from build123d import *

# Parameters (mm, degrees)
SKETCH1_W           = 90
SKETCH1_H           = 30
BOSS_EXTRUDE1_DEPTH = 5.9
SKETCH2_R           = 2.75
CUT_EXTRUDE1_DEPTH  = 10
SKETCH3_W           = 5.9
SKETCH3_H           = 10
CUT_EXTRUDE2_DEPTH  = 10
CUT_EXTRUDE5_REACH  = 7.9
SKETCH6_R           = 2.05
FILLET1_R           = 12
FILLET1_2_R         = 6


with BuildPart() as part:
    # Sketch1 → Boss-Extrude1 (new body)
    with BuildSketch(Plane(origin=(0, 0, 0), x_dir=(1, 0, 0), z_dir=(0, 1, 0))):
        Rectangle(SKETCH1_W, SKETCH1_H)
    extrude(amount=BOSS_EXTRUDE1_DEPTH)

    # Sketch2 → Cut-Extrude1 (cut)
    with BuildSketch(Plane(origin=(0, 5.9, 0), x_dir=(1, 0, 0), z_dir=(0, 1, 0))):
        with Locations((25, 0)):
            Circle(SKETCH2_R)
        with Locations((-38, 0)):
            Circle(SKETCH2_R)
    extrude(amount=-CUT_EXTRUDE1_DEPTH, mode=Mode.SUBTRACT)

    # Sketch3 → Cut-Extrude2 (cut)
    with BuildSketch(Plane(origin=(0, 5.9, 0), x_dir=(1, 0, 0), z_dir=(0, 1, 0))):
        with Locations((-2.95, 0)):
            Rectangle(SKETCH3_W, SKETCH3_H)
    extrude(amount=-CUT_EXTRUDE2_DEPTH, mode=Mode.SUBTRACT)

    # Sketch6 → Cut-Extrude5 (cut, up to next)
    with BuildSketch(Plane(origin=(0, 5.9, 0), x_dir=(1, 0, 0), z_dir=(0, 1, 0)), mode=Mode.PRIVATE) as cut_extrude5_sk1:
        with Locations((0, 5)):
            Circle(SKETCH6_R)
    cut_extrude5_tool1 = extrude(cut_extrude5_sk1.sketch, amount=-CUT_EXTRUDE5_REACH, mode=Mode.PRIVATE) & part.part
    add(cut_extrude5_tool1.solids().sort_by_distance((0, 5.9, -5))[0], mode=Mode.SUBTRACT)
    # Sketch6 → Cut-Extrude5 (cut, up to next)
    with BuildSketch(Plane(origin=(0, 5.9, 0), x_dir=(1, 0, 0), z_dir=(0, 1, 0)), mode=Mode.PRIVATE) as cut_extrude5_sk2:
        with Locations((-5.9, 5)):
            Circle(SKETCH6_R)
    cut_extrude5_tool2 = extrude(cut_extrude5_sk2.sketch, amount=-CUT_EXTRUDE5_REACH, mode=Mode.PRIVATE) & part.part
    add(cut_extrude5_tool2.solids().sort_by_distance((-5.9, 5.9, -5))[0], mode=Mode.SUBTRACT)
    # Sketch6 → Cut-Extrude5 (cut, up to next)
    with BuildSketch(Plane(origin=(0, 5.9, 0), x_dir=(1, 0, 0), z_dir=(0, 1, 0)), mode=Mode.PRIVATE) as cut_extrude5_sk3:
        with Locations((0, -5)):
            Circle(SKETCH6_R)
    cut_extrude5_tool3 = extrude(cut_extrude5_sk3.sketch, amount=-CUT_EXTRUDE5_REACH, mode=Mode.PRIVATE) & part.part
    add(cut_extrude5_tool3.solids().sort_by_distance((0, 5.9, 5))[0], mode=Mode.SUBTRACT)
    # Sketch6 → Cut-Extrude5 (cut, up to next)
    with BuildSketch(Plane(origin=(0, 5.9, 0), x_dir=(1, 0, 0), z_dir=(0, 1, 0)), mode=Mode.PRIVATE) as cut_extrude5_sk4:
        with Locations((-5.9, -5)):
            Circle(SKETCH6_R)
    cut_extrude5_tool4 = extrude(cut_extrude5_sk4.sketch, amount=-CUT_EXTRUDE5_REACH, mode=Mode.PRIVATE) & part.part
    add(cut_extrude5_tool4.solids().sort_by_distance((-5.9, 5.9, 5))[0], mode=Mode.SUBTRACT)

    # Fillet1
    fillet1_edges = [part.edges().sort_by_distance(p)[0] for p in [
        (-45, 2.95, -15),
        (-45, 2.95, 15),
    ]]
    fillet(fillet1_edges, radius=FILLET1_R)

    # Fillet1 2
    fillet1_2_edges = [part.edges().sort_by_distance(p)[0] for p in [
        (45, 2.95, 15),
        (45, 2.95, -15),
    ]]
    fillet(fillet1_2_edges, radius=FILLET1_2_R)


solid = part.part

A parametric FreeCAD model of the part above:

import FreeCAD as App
import Part
import Sketcher
Q = App.Units.Quantity


def edges_at(feature, points):
    """Names of the edges that pass closest to the given points."""
    edges = feature.Shape.Edges
    near = lambda p: min(range(len(edges)), key=lambda i: edges[i].distToShape(Part.Vertex(*p))[0])
    return sorted({f"Edge{near(p) + 1}" for p in points})


def add_polygon(sketch, points):
    """Adds a closed chain of lines whose ends are joined by coincident constraints."""
    first, n = sketch.GeometryCount, len(points)
    for a, b in zip(points, points[1:] + points[:1]):
        sketch.addGeometry(Part.LineSegment(App.Vector(*a, 0), App.Vector(*b, 0)), False)
    for i in range(n):
        sketch.addConstraint(Sketcher.Constraint("Coincident", first + i, 2, first + (i + 1) % n, 1))

doc = App.newDocument("Part")
params = doc.addObject("Spreadsheet::Sheet", "Params")
for row, (alias, value) in enumerate([
    ("sketch1_width", "90 mm"),
    ("sketch1_height", "30 mm"),
    ("pad1_length", "5.9 mm"),
    ("sketch2_diameter", "5.5 mm"),
    ("pocket1_length", "10 mm"),
    ("sketch3_height", "10 mm"),
    ("sketch3_width", "5.9 mm"),
    ("pocket2_length", "10 mm"),
    ("sketch4_diameter", "4.1 mm"),
    ("sketch5_diameter", "4.1 mm"),
    ("sketch6_diameter", "4.1 mm"),
    ("sketch7_diameter", "4.1 mm"),
    ("fillet_radius", "12 mm"),
    ("fillet2_radius", "6 mm"),
], start=1):
    params.set(f"A{row}", alias)
    params.set(f"B{row}", "=" + value)
    params.setAlias(f"B{row}", alias)

body = doc.addObject("PartDesign::Body", "Body")

# Sketch on XZ plane
sketch1 = body.newObject("Sketcher::SketchObject", "Sketch")
sketch1.AttachmentSupport = (doc.getObject("XZ_Plane"), [""])
sketch1.MapMode = "FlatFace"
add_polygon(sketch1, [(-45, -15), (-45, 15), (45, 15), (45, -15)])  # lines 0-3
sketch1.addConstraint(Sketcher.Constraint("Vertical", 0))
sketch1.addConstraint(Sketcher.Constraint("Horizontal", 1))
sketch1.addConstraint(Sketcher.Constraint("Vertical", 2))
sketch1.addConstraint(Sketcher.Constraint("Horizontal", 3))
sketch1.addConstraint(Sketcher.Constraint("Symmetric", 0, 2, 2, 2, -1, 1))
sketch1.addConstraint(Sketcher.Constraint("DistanceX", 1, 1, 1, 2, Q("90 mm")))
sketch1.addConstraint(Sketcher.Constraint("DistanceY", 0, 1, 0, 2, Q("30 mm")))
sketch1.setExpression("Constraints[9]", "Params.sketch1_width")
sketch1.setExpression("Constraints[10]", "Params.sketch1_height")
pad1 = body.newObject("PartDesign::Pad", "Pad")
pad1.Profile = sketch1
pad1.setExpression("Length", "Params.pad1_length")
pad1.Reversed = True

# Sketch on XZ plane
sketch2 = body.newObject("Sketcher::SketchObject", "Sketch001")
sketch2.AttachmentSupport = (doc.getObject("XZ_Plane"), [""])
sketch2.MapMode = "FlatFace"
sketch2.AttachmentOffset = App.Placement(App.Vector(0, 0, -5.9), App.Rotation())
sketch2.addGeometry(Part.Circle(App.Vector(25, 0, 0), App.Vector(0, 0, 1), 2.8), False)
sketch2.addGeometry(Part.Circle(App.Vector(-38, 0, 0), App.Vector(0, 0, 1), 2.8), False)
sketch2.addConstraint(Sketcher.Constraint("Equal", 0, 1))
sketch2.addConstraint(Sketcher.Constraint("PointOnObject", 0, 3, -1))
sketch2.addConstraint(Sketcher.Constraint("PointOnObject", 1, 3, -1))
sketch2.addConstraint(Sketcher.Constraint("Diameter", 0, Q("5.5 mm")))
sketch2.addConstraint(Sketcher.Constraint("DistanceX", -1, 1, 0, 3, Q("25 mm")))
sketch2.addConstraint(Sketcher.Constraint("DistanceX", 1, 3, -1, 1, Q("38 mm")))
sketch2.setExpression("Constraints[3]", "Params.sketch2_diameter")
pocket1 = body.newObject("PartDesign::Pocket", "Pocket")
pocket1.Profile = sketch2
pocket1.setExpression("Length", "Params.pocket1_length")
pocket1.Reversed = True

# Sketch on XZ plane
sketch3 = body.newObject("Sketcher::SketchObject", "Sketch002")
sketch3.AttachmentSupport = (doc.getObject("XZ_Plane"), [""])
sketch3.MapMode = "FlatFace"
sketch3.AttachmentOffset = App.Placement(App.Vector(0, 0, -5.9), App.Rotation())
add_polygon(sketch3, [(-6, -5), (-6, 5), (0, 5), (0, -5)])  # lines 0-3
sketch3.addConstraint(Sketcher.Constraint("Vertical", 0))
sketch3.addConstraint(Sketcher.Constraint("Horizontal", 1))
sketch3.addConstraint(Sketcher.Constraint("Vertical", 2))
sketch3.addConstraint(Sketcher.Constraint("Horizontal", 3))
sketch3.addConstraint(Sketcher.Constraint("Symmetric", 1, 2, 2, 2, -1, 1))
sketch3.addConstraint(Sketcher.Constraint("DistanceY", 0, 1, 0, 2, Q("10 mm")))
sketch3.addConstraint(Sketcher.Constraint("DistanceX", 1, 1, 1, 2, Q("5.9 mm")))
sketch3.setExpression("Constraints[9]", "Params.sketch3_height")
sketch3.setExpression("Constraints[10]", "Params.sketch3_width")
pocket2 = body.newObject("PartDesign::Pocket", "Pocket001")
pocket2.Profile = sketch3
pocket2.setExpression("Length", "Params.pocket2_length")
pocket2.Reversed = True

# Sketch on XZ plane
sketch4 = body.newObject("Sketcher::SketchObject", "Sketch003")
sketch4.AttachmentSupport = (doc.getObject("XZ_Plane"), [""])
sketch4.MapMode = "FlatFace"
sketch4.AttachmentOffset = App.Placement(App.Vector(0, 0, -5.9), App.Rotation())
sketch4.addGeometry(Part.Circle(App.Vector(0, -5, 0), App.Vector(0, 0, 1), 2), False)
sketch4.addConstraint(Sketcher.Constraint("PointOnObject", 0, 3, -2))
sketch4.addConstraint(Sketcher.Constraint("Diameter", 0, Q("4.1 mm")))
sketch4.addConstraint(Sketcher.Constraint("DistanceY", 0, 3, -1, 1, Q("5 mm")))
sketch4.setExpression("Constraints[1]", "Params.sketch4_diameter")
pocket3 = body.newObject("PartDesign::Pocket", "Pocket002")
pocket3.Profile = sketch4
pocket3.Type = "UpToFirst"
pocket3.Reversed = True

# Sketch on XZ plane
sketch5 = body.newObject("Sketcher::SketchObject", "Sketch004")
sketch5.AttachmentSupport = (doc.getObject("XZ_Plane"), [""])
sketch5.MapMode = "FlatFace"
sketch5.AttachmentOffset = App.Placement(App.Vector(0, 0, -5.9), App.Rotation())
sketch5.addGeometry(Part.Circle(App.Vector(-5.9, -5, 0), App.Vector(0, 0, 1), 2), False)
sketch5.addConstraint(Sketcher.Constraint("Diameter", 0, Q("4.1 mm")))
sketch5.addConstraint(Sketcher.Constraint("DistanceY", 0, 3, -1, 1, Q("5 mm")))
sketch5.addConstraint(Sketcher.Constraint("DistanceX", 0, 3, -1, 1, Q("5.9 mm")))
sketch5.setExpression("Constraints[0]", "Params.sketch5_diameter")
pocket4 = body.newObject("PartDesign::Pocket", "Pocket003")
pocket4.Profile = sketch5
pocket4.Type = "UpToFirst"
pocket4.Reversed = True

# Sketch on XZ plane
sketch6 = body.newObject("Sketcher::SketchObject", "Sketch005")
sketch6.AttachmentSupport = (doc.getObject("XZ_Plane"), [""])
sketch6.MapMode = "FlatFace"
sketch6.AttachmentOffset = App.Placement(App.Vector(0, 0, -5.9), App.Rotation())
sketch6.addGeometry(Part.Circle(App.Vector(0, 5, 0), App.Vector(0, 0, 1), 2), False)
sketch6.addConstraint(Sketcher.Constraint("PointOnObject", 0, 3, -2))
sketch6.addConstraint(Sketcher.Constraint("Diameter", 0, Q("4.1 mm")))
sketch6.addConstraint(Sketcher.Constraint("DistanceY", -1, 1, 0, 3, Q("5 mm")))
sketch6.setExpression("Constraints[1]", "Params.sketch6_diameter")
pocket5 = body.newObject("PartDesign::Pocket", "Pocket004")
pocket5.Profile = sketch6
pocket5.Type = "UpToFirst"
pocket5.Reversed = True

# Sketch on XZ plane
sketch7 = body.newObject("Sketcher::SketchObject", "Sketch006")
sketch7.AttachmentSupport = (doc.getObject("XZ_Plane"), [""])
sketch7.MapMode = "FlatFace"
sketch7.AttachmentOffset = App.Placement(App.Vector(0, 0, -5.9), App.Rotation())
sketch7.addGeometry(Part.Circle(App.Vector(-5.9, 5, 0), App.Vector(0, 0, 1), 2), False)
sketch7.addConstraint(Sketcher.Constraint("Diameter", 0, Q("4.1 mm")))
sketch7.addConstraint(Sketcher.Constraint("DistanceY", -1, 1, 0, 3, Q("5 mm")))
sketch7.addConstraint(Sketcher.Constraint("DistanceX", 0, 3, -1, 1, Q("5.9 mm")))
sketch7.setExpression("Constraints[0]", "Params.sketch7_diameter")
pocket6 = body.newObject("PartDesign::Pocket", "Pocket005")
pocket6.Profile = sketch7
pocket6.Type = "UpToFirst"
pocket6.Reversed = True
doc.recompute()

fillet = body.newObject("PartDesign::Fillet", "Fillet")
fillet.Base = (pocket6, edges_at(pocket6, [(-45, 2.95, -15), (-45, 2.95, 15)]))
fillet.setExpression("Radius", "Params.fillet_radius")
doc.recompute()

fillet2 = body.newObject("PartDesign::Fillet", "Fillet001")
fillet2.Base = (fillet, edges_at(fillet, [(45, 2.95, 15), (45, 2.95, -15)]))
fillet2.setExpression("Radius", "Params.fillet2_radius")

doc.recompute()
